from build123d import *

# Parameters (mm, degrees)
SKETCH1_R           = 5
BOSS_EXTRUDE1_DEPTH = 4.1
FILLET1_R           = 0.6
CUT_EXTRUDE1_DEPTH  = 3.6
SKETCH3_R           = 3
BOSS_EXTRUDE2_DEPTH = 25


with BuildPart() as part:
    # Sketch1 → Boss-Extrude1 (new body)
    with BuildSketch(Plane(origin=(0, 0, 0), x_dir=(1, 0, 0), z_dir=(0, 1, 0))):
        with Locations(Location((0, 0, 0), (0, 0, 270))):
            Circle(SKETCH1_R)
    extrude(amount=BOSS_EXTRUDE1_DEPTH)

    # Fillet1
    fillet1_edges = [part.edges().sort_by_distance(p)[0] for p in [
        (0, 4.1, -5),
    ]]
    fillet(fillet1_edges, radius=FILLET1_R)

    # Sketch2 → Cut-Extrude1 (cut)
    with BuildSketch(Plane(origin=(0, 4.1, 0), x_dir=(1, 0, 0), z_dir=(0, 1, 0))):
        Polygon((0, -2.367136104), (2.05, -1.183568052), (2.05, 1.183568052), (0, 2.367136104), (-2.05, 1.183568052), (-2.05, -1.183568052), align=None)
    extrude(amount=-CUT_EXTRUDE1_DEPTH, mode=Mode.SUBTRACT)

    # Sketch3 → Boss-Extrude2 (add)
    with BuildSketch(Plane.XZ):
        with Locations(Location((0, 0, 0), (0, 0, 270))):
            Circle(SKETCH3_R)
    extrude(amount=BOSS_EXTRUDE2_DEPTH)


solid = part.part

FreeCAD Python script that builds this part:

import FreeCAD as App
import Part
import Sketcher
from FreeCAD import Vector
Q = App.Units.Quantity


def edges_at(feature, points):
    """Names of the edges that pass closest to the given points."""
    edges = feature.Shape.Edges
    near = lambda p: min(range(len(edges)), key=lambda i: edges[i].distToShape(Part.Vertex(*p))[0])
    return sorted({f"Edge{near(p) + 1}" for p in points})

doc = App.newDocument("Part")
params = doc.addObject("Spreadsheet::Sheet", "Params")
for row, (alias, value) in enumerate([
    ("sketch1_diameter", "10 mm"),
    ("pad1_length", "4.1 mm"),
    ("fillet_radius", "0.6 mm"),
    ("pocket1_length", "3.6 mm"),
    ("sketch3_diameter", "6 mm"),
    ("pad2_length", "25 mm"),
], start=1):
    params.set(f"A{row}", alias)
    params.set(f"B{row}", "=" + value)
    params.setAlias(f"B{row}", alias)

body = doc.addObject("PartDesign::Body", "Body")

sketch1 = body.newObject("Sketcher::SketchObject", "Sketch")
sketch1.AttachmentSupport = (doc.getObject("XZ_Plane"), [""])
sketch1.MapMode = "FlatFace"
sketch1.addGeometry(Part.Circle(Vector(0, 0, 0), Vector(0, 0, 1), 5), False)
sketch1.addConstraint([
    Sketcher.Constraint("Coincident", 0, 3, -1, 1),
    Sketcher.Constraint("Diameter", 0, 10.0),
])
sketch1.setExpression("Constraints[1]", "Params.sketch1_diameter")
pad1 = body.newObject("PartDesign::Pad", "Pad")
pad1.Profile = sketch1
pad1.setExpression("Length", "Params.pad1_length")
pad1.Reversed = True
doc.recompute()

fillet = body.newObject("PartDesign::Fillet", "Fillet")
fillet.Base = (pad1, edges_at(pad1, [(0, 4.1, -5)]))
fillet.setExpression("Radius", "Params.fillet_radius")

sketch2 = body.newObject("Sketcher::SketchObject", "Sketch001")
sketch2.AttachmentSupport = (doc.getObject("XZ_Plane"), [""])
sketch2.MapMode = "FlatFace"
sketch2.AttachmentOffset = App.Placement(Vector(0, 0, -4.1), App.Rotation())
sketch2.addGeometry([
    Part.LineSegment(Vector(0, 2.4, 0), Vector(2, 1.2, 0)),
    Part.LineSegment(Vector(2, 1.2, 0), Vector(2, -1.2, 0)),
    Part.LineSegment(Vector(2, -1.2, 0), Vector(0, -2.4, 0)),
    Part.LineSegment(Vector(0, -2.4, 0), Vector(-2, -1.2, 0)),
    Part.LineSegment(Vector(-2, -1.2, 0), Vector(-2, 1.2, 0)),
    Part.LineSegment(Vector(-2, 1.2, 0), Vector(0, 2.4, 0)),
], False)
sketch2.addConstraint([
    Sketcher.Constraint("Coincident", 0, 2, 1, 1),
    Sketcher.Constraint("Coincident", 1, 2, 2, 1),
    Sketcher.Constraint("Coincident", 2, 2, 3, 1),
    Sketcher.Constraint("Coincident", 3, 2, 4, 1),
    Sketcher.Constraint("Coincident", 4, 2, 5, 1),
    Sketcher.Constraint("Coincident", 5, 2, 0, 1),
    Sketcher.Constraint("Vertical", 1),
    Sketcher.Constraint("Vertical", 4),
    Sketcher.Constraint("Symmetric", 0, 2, 3, 2, -1, 1),
    Sketcher.Constraint("Symmetric", 2, 2, 5, 2, -1, 1),
    Sketcher.Constraint("PointOnObject", 2, 2, -2),
    Sketcher.Constraint("Parallel", 2, 5),
    Sketcher.Constraint("Horizontal", 1, 2, 3, 2),
    Sketcher.Constraint("Angle", 0, Q("-30 deg")),
    Sketcher.Constraint("DistanceX", 3, 2, 1, 2, 4.1),
    Sketcher.Constraint("DistanceY", 1, 2, 1, 1, 2.367136),
])
pocket1 = body.newObject("PartDesign::Pocket", "Pocket")
pocket1.Profile = sketch2
pocket1.setExpression("Length", "Params.pocket1_length")
pocket1.Reversed = True

sketch3 = body.newObject("Sketcher::SketchObject", "Sketch002")
sketch3.AttachmentSupport = (doc.getObject("XZ_Plane"), [""])
sketch3.MapMode = "FlatFace"
sketch3.addGeometry(Part.Circle(Vector(0, 0, 0), Vector(0, 0, 1), 3), False)
sketch3.addConstraint([
    Sketcher.Constraint("Coincident", 0, 3, -1, 1),
    Sketcher.Constraint("Diameter", 0, 6.0),
])
sketch3.setExpression("Constraints[1]", "Params.sketch3_diameter")
pad2 = body.newObject("PartDesign::Pad", "Pad001")
pad2.Profile = sketch3
pad2.setExpression("Length", "Params.pad2_length")

doc.recompute()
